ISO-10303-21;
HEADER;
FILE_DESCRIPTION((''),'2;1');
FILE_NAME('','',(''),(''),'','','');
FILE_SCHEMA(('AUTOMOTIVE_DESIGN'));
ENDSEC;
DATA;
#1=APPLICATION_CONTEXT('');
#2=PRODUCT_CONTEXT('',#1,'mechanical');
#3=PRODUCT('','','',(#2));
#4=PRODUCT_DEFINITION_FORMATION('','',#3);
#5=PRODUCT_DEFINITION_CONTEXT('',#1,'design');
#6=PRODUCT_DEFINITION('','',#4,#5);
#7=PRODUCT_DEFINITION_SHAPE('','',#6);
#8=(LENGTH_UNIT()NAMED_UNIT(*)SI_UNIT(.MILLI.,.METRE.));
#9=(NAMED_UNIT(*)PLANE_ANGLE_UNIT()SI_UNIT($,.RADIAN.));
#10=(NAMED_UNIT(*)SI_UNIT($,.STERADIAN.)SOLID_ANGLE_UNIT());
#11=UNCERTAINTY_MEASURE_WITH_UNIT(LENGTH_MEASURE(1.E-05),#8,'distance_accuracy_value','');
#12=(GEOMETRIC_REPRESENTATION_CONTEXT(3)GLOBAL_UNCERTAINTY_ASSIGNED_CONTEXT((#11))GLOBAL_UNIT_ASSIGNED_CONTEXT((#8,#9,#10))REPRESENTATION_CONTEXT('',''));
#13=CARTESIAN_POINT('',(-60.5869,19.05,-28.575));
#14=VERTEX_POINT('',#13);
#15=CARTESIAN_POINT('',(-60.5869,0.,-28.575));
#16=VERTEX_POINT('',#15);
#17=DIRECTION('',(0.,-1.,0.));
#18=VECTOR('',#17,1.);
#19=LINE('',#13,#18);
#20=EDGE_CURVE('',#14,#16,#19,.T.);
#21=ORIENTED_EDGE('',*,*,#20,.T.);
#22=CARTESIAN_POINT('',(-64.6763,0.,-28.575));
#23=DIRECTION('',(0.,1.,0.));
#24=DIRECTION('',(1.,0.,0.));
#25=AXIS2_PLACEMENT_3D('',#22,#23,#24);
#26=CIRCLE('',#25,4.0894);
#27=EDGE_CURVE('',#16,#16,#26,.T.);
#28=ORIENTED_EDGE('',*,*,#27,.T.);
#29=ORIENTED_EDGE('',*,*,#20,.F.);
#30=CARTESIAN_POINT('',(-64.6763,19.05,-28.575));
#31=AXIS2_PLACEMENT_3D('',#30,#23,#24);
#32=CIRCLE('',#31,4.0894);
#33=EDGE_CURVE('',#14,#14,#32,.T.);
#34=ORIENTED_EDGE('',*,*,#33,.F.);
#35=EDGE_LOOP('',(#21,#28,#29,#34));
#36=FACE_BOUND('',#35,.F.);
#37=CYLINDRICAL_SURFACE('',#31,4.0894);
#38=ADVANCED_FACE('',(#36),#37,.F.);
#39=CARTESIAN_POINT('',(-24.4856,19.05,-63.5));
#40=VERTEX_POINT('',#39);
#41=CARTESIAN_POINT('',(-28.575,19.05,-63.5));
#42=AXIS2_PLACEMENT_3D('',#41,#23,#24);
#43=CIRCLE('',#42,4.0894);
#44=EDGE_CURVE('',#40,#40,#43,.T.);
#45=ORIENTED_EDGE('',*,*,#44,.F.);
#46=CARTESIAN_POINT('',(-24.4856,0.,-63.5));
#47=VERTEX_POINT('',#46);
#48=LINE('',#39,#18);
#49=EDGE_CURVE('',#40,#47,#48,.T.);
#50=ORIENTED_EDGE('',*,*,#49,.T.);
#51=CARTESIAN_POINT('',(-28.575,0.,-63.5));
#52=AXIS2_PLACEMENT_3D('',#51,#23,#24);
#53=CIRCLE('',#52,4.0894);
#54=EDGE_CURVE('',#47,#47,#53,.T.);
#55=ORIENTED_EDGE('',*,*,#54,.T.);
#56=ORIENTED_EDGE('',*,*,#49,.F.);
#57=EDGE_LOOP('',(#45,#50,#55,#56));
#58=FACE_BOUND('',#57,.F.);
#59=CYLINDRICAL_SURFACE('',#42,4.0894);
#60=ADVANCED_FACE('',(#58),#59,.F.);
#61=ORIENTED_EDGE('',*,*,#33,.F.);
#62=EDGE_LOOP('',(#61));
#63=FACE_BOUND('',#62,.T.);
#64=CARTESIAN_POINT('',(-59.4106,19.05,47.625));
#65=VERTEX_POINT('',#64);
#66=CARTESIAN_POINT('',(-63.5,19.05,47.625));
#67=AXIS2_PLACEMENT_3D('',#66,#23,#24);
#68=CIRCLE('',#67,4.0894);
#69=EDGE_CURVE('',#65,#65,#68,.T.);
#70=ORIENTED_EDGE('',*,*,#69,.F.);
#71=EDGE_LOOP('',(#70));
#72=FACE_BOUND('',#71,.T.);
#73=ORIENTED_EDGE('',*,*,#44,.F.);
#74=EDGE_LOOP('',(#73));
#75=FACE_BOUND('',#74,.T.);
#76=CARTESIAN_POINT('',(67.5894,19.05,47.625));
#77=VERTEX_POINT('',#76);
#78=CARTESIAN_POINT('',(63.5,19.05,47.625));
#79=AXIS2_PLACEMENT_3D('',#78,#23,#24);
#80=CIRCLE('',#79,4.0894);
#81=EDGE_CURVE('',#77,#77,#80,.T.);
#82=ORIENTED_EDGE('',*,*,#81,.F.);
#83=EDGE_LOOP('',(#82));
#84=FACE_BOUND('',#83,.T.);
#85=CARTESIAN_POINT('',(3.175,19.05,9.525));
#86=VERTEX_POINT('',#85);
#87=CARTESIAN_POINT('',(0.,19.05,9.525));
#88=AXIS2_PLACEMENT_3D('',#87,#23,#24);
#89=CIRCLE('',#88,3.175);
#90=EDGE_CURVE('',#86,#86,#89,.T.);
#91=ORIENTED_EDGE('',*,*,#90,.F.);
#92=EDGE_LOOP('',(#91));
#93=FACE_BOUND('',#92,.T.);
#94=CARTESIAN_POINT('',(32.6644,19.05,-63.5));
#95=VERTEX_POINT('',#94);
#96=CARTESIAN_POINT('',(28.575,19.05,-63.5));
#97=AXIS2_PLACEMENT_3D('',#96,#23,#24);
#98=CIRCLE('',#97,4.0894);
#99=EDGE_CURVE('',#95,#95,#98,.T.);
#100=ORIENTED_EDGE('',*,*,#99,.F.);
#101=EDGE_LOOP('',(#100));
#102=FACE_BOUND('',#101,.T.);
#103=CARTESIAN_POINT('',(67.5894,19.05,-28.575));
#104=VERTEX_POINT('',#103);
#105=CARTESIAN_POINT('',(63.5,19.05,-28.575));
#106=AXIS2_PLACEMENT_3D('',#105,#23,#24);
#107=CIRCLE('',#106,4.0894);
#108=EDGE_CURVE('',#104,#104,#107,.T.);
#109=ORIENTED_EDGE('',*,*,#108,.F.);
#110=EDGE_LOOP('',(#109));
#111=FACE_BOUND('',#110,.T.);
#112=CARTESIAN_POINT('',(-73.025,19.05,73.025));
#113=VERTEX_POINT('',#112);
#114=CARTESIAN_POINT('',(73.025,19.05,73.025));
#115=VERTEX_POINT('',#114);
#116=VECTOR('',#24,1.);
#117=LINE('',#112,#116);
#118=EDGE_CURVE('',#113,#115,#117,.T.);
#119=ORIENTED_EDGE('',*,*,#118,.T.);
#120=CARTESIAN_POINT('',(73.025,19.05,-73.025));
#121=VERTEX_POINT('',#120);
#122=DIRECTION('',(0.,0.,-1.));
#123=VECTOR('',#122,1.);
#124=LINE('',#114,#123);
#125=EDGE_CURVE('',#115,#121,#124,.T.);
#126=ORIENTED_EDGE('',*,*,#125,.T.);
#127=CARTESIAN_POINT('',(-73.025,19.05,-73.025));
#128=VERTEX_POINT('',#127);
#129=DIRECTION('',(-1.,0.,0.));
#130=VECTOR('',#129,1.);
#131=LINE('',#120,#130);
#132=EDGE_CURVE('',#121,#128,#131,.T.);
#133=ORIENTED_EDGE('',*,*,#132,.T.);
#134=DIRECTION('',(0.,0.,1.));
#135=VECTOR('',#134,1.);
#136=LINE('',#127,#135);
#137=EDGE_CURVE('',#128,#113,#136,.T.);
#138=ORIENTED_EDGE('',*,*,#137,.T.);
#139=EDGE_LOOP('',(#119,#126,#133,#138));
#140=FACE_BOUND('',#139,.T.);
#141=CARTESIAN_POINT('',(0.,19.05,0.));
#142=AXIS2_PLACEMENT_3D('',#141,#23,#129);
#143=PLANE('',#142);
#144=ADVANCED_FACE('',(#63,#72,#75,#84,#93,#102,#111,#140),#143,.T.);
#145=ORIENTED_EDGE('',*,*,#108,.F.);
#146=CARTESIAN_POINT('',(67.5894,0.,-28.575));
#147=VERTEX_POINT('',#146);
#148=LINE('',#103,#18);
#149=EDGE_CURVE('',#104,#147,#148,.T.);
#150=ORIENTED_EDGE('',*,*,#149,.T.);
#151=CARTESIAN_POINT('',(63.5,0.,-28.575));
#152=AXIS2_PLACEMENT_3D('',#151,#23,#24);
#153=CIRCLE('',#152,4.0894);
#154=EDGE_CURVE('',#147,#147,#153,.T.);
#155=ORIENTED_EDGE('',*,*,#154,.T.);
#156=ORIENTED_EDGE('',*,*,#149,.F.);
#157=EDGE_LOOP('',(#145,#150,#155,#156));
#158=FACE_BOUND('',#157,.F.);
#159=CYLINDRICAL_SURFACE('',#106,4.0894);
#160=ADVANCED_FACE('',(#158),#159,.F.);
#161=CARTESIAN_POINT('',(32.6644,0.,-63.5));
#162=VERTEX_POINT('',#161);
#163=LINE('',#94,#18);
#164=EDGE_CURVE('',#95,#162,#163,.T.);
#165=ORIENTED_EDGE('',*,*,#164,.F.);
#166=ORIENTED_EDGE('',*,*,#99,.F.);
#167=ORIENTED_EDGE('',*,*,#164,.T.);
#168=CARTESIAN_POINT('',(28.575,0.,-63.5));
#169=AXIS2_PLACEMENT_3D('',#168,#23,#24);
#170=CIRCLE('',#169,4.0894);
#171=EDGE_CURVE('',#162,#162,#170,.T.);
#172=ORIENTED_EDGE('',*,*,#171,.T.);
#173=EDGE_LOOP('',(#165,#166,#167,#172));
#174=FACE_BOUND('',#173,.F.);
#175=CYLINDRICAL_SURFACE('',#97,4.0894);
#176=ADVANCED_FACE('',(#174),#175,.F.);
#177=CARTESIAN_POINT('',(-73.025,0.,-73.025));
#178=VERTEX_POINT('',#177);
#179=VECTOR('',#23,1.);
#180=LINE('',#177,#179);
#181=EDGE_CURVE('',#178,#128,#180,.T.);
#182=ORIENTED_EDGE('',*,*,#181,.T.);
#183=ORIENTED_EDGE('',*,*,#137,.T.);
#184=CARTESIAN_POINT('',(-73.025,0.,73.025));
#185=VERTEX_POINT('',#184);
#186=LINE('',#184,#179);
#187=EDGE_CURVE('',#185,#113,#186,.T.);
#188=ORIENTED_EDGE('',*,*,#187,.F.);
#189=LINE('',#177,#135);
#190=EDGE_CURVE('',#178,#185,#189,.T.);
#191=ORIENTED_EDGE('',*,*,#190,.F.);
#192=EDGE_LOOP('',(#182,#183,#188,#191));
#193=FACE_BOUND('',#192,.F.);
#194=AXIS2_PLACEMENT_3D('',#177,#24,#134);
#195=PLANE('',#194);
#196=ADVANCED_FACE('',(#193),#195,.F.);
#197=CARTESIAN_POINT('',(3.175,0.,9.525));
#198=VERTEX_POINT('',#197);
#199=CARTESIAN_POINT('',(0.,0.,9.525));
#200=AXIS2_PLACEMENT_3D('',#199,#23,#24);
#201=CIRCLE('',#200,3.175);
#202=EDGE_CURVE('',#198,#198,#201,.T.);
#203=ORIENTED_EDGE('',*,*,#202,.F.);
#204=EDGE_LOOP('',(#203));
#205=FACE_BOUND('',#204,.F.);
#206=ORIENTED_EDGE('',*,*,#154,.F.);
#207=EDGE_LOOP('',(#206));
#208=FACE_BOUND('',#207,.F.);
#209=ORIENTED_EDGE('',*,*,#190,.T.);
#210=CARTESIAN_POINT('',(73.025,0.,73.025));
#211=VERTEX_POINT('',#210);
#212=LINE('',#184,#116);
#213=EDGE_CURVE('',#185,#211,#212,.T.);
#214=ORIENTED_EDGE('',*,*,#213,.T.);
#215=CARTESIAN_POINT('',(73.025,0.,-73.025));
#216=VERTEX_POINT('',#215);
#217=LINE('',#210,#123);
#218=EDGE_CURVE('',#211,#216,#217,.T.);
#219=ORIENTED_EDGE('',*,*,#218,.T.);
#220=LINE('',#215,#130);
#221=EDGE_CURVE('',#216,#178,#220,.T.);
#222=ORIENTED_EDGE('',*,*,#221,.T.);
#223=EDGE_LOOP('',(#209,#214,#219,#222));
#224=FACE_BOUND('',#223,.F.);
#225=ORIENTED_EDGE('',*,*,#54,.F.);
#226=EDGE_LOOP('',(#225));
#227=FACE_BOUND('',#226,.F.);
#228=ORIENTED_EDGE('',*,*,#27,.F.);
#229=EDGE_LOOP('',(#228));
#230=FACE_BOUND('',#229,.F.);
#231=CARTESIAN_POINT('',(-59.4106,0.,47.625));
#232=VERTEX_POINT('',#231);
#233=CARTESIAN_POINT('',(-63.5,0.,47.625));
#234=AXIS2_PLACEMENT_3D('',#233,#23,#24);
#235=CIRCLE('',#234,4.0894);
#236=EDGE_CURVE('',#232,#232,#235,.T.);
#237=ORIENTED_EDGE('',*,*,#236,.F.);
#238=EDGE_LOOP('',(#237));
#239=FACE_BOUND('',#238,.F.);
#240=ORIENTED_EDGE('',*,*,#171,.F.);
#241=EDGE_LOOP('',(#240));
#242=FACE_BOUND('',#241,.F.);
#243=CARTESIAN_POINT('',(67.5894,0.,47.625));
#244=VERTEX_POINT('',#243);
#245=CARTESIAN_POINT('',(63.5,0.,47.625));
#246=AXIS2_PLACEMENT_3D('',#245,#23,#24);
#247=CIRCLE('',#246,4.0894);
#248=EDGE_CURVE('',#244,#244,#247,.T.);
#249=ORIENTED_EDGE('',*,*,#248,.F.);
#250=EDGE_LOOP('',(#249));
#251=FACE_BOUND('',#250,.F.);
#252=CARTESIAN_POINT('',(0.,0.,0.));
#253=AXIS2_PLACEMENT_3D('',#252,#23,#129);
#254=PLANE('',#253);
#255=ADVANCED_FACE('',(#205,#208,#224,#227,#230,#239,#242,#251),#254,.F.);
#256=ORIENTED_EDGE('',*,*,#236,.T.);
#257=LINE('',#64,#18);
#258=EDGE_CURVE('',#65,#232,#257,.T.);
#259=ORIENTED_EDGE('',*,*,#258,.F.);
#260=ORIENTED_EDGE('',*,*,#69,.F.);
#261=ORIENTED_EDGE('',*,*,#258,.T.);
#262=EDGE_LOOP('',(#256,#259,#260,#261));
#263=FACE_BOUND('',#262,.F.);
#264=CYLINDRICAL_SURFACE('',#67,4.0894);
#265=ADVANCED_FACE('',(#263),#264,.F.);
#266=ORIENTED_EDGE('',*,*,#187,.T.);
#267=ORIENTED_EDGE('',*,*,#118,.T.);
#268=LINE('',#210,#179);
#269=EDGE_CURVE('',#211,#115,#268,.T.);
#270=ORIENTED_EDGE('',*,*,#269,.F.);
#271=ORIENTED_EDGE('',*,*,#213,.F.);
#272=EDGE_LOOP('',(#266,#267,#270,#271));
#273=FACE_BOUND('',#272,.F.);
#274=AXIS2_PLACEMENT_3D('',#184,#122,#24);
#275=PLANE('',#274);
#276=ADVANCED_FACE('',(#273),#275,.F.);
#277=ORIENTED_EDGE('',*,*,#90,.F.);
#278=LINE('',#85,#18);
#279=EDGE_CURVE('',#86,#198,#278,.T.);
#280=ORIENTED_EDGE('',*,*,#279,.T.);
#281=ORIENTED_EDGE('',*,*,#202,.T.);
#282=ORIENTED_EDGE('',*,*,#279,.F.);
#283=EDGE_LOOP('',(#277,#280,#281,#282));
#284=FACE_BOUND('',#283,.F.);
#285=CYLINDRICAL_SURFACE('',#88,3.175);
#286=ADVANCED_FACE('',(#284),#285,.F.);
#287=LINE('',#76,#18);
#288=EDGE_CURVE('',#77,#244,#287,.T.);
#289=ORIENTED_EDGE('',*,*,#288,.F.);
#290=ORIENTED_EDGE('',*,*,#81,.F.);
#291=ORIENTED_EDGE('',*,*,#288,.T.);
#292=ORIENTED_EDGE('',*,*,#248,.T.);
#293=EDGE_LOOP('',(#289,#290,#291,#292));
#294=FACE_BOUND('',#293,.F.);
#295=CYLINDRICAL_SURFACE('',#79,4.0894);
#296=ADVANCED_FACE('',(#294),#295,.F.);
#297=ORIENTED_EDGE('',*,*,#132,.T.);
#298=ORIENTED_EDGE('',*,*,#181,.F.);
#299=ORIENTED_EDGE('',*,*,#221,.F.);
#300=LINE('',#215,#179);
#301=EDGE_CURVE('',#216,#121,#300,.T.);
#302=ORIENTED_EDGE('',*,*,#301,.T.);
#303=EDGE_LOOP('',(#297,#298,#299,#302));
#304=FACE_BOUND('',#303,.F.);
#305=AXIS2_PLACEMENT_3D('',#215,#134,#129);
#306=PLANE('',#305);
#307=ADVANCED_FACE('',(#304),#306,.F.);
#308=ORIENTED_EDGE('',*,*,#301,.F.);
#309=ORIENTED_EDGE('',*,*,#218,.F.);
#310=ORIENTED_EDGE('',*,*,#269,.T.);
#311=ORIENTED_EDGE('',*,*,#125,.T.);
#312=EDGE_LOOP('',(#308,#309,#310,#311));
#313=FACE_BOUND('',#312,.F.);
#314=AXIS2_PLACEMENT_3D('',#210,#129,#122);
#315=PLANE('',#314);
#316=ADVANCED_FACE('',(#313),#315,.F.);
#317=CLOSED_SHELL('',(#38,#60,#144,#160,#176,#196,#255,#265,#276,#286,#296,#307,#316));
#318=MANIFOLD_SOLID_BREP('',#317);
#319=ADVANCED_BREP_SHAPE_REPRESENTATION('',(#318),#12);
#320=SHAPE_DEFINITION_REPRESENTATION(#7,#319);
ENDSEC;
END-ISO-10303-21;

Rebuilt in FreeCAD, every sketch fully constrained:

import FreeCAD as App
import Part
import Sketcher

V = App.Vector
Q = App.Units.Quantity

doc = App.newDocument("Part")
body = doc.addObject("PartDesign::Body", "Body")

sketch1 = body.newObject("Sketcher::SketchObject", "Sketch")
sketch1.AttachmentSupport = (doc.getObject("XZ_Plane"), [""])
sketch1.MapMode = "FlatFace"
sketch1.addGeometry([
    Part.LineSegment(V(-73.025, -73.025, 0), V(-73.025, 73.025, 0)),
    Part.LineSegment(V(-73.025, 73.025, 0), V(73.025, 73.025, 0)),
    Part.LineSegment(V(73.025, 73.025, 0), V(73.025, -73.025, 0)),
    Part.LineSegment(V(73.025, -73.025, 0), V(-73.025, -73.025, 0)),
], False)
sketch1.addConstraint([
    Sketcher.Constraint("Coincident", 0, 2, 1, 1),
    Sketcher.Constraint("Coincident", 1, 2, 2, 1),
    Sketcher.Constraint("Coincident", 2, 2, 3, 1),
    Sketcher.Constraint("Coincident", 3, 2, 0, 1),
    Sketcher.Constraint("Vertical", 0),
    Sketcher.Constraint("Horizontal", 1),
    Sketcher.Constraint("Vertical", 2),
    Sketcher.Constraint("Horizontal", 3),
    Sketcher.Constraint("Symmetric", 0, 2, 2, 2, -1, 1),
    Sketcher.Constraint("Equal", 3, 0),
    Sketcher.Constraint("DistanceX", 1, 1, 1, 2, Q("5.75 in")),
])
pad1 = body.newObject("PartDesign::Pad", "Pad")
pad1.Profile = sketch1
pad1.Length = Q("0.75 in")
pad1.Reversed = True

sketch2 = body.newObject("Sketcher::SketchObject", "Sketch001")
sketch2.AttachmentSupport = (doc.getObject("XZ_Plane"), [""])
sketch2.MapMode = "FlatFace"
sketch2.AttachmentOffset = App.Placement(V(0, 0, -0.75 * 25.4), App.Rotation())
sketch2.addGeometry(Part.Circle(V(0, 9.525, 0), V(0, 0, 1), 3.175), False)
sketch2.addConstraint([
    Sketcher.Constraint("PointOnObject", 0, 3, -2),
    Sketcher.Constraint("Diameter", 0, Q("0.25 in")),
    Sketcher.Constraint("DistanceY", -1, 1, 0, 3, Q("0.375 in")),
])
pocket1 = body.newObject("PartDesign::Pocket", "Pocket")
pocket1.Profile = sketch2
pocket1.Length = Q("0.75 in")
pocket1.Reversed = True

sketch3 = body.newObject("Sketcher::SketchObject", "Sketch002")
sketch3.AttachmentSupport = (doc.getObject("XZ_Plane"), [""])
sketch3.MapMode = "FlatFace"
sketch3.AttachmentOffset = App.Placement(V(0, 0, -0.75 * 25.4), App.Rotation())
sketch3.addGeometry([
    Part.Circle(V(-63.5, 47.625, 0), V(0, 0, 1), 4.0894),
    Part.Circle(V(-64.6763, -28.575, 0), V(0, 0, 1), 4.0894),
    Part.Circle(V(63.5, 47.625, 0), V(0, 0, 1), 4.0894),
    Part.Circle(V(63.5, -28.575, 0), V(0, 0, 1), 4.0894),
    Part.Circle(V(-28.575, -63.5, 0), V(0, 0, 1), 4.0894),
    Part.Circle(V(28.575, -63.5, 0), V(0, 0, 1), 4.0894),
], False)
sketch3.addConstraint([
    Sketcher.Constraint("Equal", 0, 1),
    Sketcher.Constraint("Equal", 1, 2),
    Sketcher.Constraint("Equal", 2, 3),
    Sketcher.Constraint("Equal", 3, 4),
    Sketcher.Constraint("Equal", 4, 5),
    Sketcher.Constraint("Symmetric", 0, 3, 2, 3, -2),
    Sketcher.Constraint("Symmetric", 4, 3, 5, 3, -2),
    Sketcher.Constraint("Horizontal", 1, 3, 3, 3),
    Sketcher.Constraint("Vertical", 2, 3, 3, 3),
    Sketcher.Constraint("Diameter", 0, Q("0.322 in")),
    Sketcher.Constraint("DistanceY", 1, 3, 0, 3, Q("3 in")),
    Sketcher.Constraint("DistanceX", 0, 3, 2, 3, Q("5 in")),
    Sketcher.Constraint("DistanceY", 4, 3, -1, 1, Q("2.5 in")),
    Sketcher.Constraint("DistanceX", 4, 3, 5, 3, Q("2.25 in")),
    Sketcher.Constraint("DistanceY", -1, 1, 0, 3, Q("1.875 in")),
    Sketcher.Constraint("DistanceX", 1, 3, -1, 1, Q("2.5463 in")),
])
pocket2 = body.newObject("PartDesign::Pocket", "Pocket001")
pocket2.Profile = sketch3
pocket2.Length = Q("0.75 in")
pocket2.Reversed = True

doc.recompute()
